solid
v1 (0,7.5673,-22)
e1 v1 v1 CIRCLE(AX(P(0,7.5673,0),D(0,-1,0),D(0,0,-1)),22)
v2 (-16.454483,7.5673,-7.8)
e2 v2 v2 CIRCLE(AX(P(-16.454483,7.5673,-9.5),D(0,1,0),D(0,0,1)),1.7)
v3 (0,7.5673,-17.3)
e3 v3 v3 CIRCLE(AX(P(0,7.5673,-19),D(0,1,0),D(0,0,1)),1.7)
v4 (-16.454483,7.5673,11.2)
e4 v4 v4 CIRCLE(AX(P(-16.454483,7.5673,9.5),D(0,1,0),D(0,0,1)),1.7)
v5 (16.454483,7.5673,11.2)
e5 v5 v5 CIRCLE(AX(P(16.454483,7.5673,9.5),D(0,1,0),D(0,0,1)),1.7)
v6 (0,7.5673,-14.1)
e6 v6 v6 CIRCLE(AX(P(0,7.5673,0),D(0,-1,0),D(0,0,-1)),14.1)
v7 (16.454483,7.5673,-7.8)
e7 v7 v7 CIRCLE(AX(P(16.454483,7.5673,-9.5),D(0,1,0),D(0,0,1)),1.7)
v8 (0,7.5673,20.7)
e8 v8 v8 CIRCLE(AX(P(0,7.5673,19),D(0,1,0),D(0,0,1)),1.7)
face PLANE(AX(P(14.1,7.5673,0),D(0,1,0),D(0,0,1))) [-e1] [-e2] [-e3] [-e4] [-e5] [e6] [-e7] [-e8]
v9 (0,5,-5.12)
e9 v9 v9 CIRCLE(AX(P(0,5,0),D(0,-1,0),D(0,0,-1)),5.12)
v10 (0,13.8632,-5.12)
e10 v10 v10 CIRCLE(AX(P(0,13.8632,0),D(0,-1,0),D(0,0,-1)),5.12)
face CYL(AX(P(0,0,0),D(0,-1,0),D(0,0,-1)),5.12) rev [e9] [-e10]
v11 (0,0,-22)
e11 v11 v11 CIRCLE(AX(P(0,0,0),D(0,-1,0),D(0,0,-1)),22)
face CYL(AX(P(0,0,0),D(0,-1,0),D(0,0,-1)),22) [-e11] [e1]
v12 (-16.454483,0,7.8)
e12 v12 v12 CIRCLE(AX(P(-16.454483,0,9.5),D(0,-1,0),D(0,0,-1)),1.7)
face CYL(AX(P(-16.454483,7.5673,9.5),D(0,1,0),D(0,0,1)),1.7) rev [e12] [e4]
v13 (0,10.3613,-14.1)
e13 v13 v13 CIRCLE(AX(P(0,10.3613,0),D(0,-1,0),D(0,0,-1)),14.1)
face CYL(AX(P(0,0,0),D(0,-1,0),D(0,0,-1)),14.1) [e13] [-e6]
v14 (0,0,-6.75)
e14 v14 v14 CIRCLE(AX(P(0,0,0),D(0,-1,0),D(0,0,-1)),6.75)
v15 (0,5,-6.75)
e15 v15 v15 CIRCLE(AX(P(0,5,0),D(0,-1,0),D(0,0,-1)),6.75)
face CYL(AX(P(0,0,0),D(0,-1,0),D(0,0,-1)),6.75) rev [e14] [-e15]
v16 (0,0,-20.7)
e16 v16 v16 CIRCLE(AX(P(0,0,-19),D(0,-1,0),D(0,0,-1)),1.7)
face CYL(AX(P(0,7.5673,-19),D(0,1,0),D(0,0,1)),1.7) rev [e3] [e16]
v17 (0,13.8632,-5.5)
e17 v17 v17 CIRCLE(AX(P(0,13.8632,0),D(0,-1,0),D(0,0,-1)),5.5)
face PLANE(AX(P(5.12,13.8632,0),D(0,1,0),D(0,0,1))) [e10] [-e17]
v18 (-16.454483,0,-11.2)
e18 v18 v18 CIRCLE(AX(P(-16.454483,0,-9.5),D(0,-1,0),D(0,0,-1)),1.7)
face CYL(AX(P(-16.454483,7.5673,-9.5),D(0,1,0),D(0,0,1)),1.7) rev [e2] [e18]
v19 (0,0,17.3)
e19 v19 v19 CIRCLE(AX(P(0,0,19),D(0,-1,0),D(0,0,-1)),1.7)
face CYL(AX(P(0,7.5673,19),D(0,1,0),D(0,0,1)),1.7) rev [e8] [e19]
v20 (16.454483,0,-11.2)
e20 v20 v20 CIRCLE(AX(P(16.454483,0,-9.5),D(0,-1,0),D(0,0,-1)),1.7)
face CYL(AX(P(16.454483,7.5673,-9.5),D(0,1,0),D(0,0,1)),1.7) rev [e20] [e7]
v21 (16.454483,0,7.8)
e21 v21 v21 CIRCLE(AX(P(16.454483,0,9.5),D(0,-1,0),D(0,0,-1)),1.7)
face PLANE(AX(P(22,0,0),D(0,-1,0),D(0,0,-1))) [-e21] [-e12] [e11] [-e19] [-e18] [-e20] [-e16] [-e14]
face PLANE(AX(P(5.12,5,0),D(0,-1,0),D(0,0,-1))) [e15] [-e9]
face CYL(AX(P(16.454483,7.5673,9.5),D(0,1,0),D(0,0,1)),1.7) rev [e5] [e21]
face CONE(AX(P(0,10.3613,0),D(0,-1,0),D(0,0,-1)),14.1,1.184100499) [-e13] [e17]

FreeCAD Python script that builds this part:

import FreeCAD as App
import Part
import Sketcher
from FreeCAD import Vector

doc = App.newDocument("Part")
body = doc.addObject("PartDesign::Body", "Body")

# Sketch on XY plane
sketch1 = body.newObject("Sketcher::SketchObject", "Sketch")
sketch1.AttachmentSupport = (doc.getObject("XY_Plane"), [""])
sketch1.MapMode = "FlatFace"
sketch1.addGeometry([
    Part.LineSegment(Vector(5.12, 13.86, 0), Vector(5.12, 5, 0)),  # 0
    Part.LineSegment(Vector(5.12, 5, 0), Vector(6.75, 5, 0)),  # 1
    Part.LineSegment(Vector(6.75, 5, 0), Vector(6.75, 0, 0)),  # 2
    Part.LineSegment(Vector(6.75, 0, 0), Vector(22, 0, 0)),  # 3
    Part.LineSegment(Vector(22, 0, 0), Vector(22, 7.57, 0)),  # 4
    Part.LineSegment(Vector(22, 7.57, 0), Vector(14.1, 7.57, 0)),  # 5
    Part.LineSegment(Vector(14.1, 7.57, 0), Vector(14.1, 10.36, 0)),  # 6
    Part.LineSegment(Vector(14.1, 10.36, 0), Vector(5.5, 13.86, 0)),  # 7
    Part.LineSegment(Vector(5.5, 13.86, 0), Vector(5.12, 13.86, 0)),  # 8
], False)
sketch1.addConstraint([
    Sketcher.Constraint("Coincident", 0, 2, 1, 1),
    Sketcher.Constraint("Coincident", 1, 2, 2, 1),
    Sketcher.Constraint("Coincident", 2, 2, 3, 1),
    Sketcher.Constraint("Coincident", 3, 2, 4, 1),
    Sketcher.Constraint("Coincident", 4, 2, 5, 1),
    Sketcher.Constraint("Coincident", 5, 2, 6, 1),
    Sketcher.Constraint("Coincident", 6, 2, 7, 1),
    Sketcher.Constraint("Coincident", 7, 2, 8, 1),
    Sketcher.Constraint("Coincident", 8, 2, 0, 1),
    Sketcher.Constraint("Vertical", 0),
    Sketcher.Constraint("Horizontal", 1),
    Sketcher.Constraint("Vertical", 2),
    Sketcher.Constraint("Horizontal", 3),
    Sketcher.Constraint("Vertical", 4),
    Sketcher.Constraint("Horizontal", 5),
    Sketcher.Constraint("Vertical", 6),
    Sketcher.Constraint("Horizontal", 8),
    Sketcher.Constraint("PointOnObject", 2, 2, -1),
    Sketcher.Constraint("DistanceY", 2, 2, 2, 1, 5.0),
    Sketcher.Constraint("DistanceX", 5, 2, 5, 1, 7.9),
    Sketcher.Constraint("DistanceX", -1, 1, 3, 2, 22.0),
    Sketcher.Constraint("DistanceX", 1, 1, 1, 2, 1.63),
    Sketcher.Constraint("DistanceX", 3, 1, 3, 2, 15.25),
    Sketcher.Constraint("DistanceX", 8, 2, 8, 1, 0.38),
    Sketcher.Constraint("DistanceY", 6, 1, 6, 2, 2.794),
    Sketcher.Constraint("DistanceY", 0, 2, 0, 1, 8.8632),
    Sketcher.Constraint("DistanceY", 4, 1, 4, 2, 7.5673),
])
revolution = body.newObject("PartDesign::Revolution", "Revolution")
revolution.Profile = sketch1
revolution.ReferenceAxis = (sketch1, ["V_Axis"])
revolution.Angle = 360

# Sketch on XZ plane
sketch2 = body.newObject("Sketcher::SketchObject", "Sketch001")
sketch2.AttachmentSupport = (doc.getObject("XZ_Plane"), [""])
sketch2.MapMode = "FlatFace"
sketch2.AttachmentOffset = App.Placement(Vector(0, 0, -7.5673), App.Rotation())
sketch2.addGeometry([
    Part.Circle(Vector(0, -19, 0), Vector(0, 0, 1), 1.7),  # 0
    Part.Circle(Vector(16.5, -9.5, 0), Vector(0, 0, 1), 1.7),  # 1
    Part.Circle(Vector(16.5, 9.5, 0), Vector(0, 0, 1), 1.7),  # 2
    Part.Circle(Vector(0, 19, 0), Vector(0, 0, 1), 1.7),  # 3
    Part.Circle(Vector(-16.5, 9.5, 0), Vector(0, 0, 1), 1.7),  # 4
    Part.Circle(Vector(-16.5, -9.5, 0), Vector(0, 0, 1), 1.7),  # 5
    Part.Circle(Vector(0, 0, 0), Vector(0, 0, 1), 1.7),  # 6
], False)
sketch2.addConstraint([
    Sketcher.Constraint("Coincident", 6, 3, -1, 1),
    Sketcher.Constraint("Equal", 0, 1),
    Sketcher.Constraint("Equal", 1, 2),
    Sketcher.Constraint("Equal", 2, 3),
    Sketcher.Constraint("Equal", 3, 4),
    Sketcher.Constraint("Equal", 4, 5),
    Sketcher.Constraint("Equal", 5, 6),
    Sketcher.Constraint("Symmetric", 0, 3, 3, 3, -1, 1),
    Sketcher.Constraint("Symmetric", 1, 3, 4, 3, -1, 1),
    Sketcher.Constraint("Symmetric", 2, 3, 5, 3, -1, 1),
    Sketcher.Constraint("Symmetric", 2, 3, 4, 3, -2),
    Sketcher.Constraint("PointOnObject", 0, 3, -2),
    Sketcher.Constraint("Diameter", 0, 3.4),
    Sketcher.Constraint("DistanceY", 0, 3, -1, 1, 19.0),
    Sketcher.Constraint("DistanceY", 1, 3, 2, 3, 19.0),
    Sketcher.Constraint("DistanceX", -1, 1, 1, 3, 16.454483),
])
doc.recompute()
hole = body.newObject("PartDesign::Hole", "Hole")
hole.Profile = sketch2
hole.ThreadType = "None"
hole.Diameter = 3.4
hole.DepthType = "Dimension"
hole.Depth = 7.5673
hole.DrillPoint = "Flat"
hole.Reversed = True

doc.recompute()
